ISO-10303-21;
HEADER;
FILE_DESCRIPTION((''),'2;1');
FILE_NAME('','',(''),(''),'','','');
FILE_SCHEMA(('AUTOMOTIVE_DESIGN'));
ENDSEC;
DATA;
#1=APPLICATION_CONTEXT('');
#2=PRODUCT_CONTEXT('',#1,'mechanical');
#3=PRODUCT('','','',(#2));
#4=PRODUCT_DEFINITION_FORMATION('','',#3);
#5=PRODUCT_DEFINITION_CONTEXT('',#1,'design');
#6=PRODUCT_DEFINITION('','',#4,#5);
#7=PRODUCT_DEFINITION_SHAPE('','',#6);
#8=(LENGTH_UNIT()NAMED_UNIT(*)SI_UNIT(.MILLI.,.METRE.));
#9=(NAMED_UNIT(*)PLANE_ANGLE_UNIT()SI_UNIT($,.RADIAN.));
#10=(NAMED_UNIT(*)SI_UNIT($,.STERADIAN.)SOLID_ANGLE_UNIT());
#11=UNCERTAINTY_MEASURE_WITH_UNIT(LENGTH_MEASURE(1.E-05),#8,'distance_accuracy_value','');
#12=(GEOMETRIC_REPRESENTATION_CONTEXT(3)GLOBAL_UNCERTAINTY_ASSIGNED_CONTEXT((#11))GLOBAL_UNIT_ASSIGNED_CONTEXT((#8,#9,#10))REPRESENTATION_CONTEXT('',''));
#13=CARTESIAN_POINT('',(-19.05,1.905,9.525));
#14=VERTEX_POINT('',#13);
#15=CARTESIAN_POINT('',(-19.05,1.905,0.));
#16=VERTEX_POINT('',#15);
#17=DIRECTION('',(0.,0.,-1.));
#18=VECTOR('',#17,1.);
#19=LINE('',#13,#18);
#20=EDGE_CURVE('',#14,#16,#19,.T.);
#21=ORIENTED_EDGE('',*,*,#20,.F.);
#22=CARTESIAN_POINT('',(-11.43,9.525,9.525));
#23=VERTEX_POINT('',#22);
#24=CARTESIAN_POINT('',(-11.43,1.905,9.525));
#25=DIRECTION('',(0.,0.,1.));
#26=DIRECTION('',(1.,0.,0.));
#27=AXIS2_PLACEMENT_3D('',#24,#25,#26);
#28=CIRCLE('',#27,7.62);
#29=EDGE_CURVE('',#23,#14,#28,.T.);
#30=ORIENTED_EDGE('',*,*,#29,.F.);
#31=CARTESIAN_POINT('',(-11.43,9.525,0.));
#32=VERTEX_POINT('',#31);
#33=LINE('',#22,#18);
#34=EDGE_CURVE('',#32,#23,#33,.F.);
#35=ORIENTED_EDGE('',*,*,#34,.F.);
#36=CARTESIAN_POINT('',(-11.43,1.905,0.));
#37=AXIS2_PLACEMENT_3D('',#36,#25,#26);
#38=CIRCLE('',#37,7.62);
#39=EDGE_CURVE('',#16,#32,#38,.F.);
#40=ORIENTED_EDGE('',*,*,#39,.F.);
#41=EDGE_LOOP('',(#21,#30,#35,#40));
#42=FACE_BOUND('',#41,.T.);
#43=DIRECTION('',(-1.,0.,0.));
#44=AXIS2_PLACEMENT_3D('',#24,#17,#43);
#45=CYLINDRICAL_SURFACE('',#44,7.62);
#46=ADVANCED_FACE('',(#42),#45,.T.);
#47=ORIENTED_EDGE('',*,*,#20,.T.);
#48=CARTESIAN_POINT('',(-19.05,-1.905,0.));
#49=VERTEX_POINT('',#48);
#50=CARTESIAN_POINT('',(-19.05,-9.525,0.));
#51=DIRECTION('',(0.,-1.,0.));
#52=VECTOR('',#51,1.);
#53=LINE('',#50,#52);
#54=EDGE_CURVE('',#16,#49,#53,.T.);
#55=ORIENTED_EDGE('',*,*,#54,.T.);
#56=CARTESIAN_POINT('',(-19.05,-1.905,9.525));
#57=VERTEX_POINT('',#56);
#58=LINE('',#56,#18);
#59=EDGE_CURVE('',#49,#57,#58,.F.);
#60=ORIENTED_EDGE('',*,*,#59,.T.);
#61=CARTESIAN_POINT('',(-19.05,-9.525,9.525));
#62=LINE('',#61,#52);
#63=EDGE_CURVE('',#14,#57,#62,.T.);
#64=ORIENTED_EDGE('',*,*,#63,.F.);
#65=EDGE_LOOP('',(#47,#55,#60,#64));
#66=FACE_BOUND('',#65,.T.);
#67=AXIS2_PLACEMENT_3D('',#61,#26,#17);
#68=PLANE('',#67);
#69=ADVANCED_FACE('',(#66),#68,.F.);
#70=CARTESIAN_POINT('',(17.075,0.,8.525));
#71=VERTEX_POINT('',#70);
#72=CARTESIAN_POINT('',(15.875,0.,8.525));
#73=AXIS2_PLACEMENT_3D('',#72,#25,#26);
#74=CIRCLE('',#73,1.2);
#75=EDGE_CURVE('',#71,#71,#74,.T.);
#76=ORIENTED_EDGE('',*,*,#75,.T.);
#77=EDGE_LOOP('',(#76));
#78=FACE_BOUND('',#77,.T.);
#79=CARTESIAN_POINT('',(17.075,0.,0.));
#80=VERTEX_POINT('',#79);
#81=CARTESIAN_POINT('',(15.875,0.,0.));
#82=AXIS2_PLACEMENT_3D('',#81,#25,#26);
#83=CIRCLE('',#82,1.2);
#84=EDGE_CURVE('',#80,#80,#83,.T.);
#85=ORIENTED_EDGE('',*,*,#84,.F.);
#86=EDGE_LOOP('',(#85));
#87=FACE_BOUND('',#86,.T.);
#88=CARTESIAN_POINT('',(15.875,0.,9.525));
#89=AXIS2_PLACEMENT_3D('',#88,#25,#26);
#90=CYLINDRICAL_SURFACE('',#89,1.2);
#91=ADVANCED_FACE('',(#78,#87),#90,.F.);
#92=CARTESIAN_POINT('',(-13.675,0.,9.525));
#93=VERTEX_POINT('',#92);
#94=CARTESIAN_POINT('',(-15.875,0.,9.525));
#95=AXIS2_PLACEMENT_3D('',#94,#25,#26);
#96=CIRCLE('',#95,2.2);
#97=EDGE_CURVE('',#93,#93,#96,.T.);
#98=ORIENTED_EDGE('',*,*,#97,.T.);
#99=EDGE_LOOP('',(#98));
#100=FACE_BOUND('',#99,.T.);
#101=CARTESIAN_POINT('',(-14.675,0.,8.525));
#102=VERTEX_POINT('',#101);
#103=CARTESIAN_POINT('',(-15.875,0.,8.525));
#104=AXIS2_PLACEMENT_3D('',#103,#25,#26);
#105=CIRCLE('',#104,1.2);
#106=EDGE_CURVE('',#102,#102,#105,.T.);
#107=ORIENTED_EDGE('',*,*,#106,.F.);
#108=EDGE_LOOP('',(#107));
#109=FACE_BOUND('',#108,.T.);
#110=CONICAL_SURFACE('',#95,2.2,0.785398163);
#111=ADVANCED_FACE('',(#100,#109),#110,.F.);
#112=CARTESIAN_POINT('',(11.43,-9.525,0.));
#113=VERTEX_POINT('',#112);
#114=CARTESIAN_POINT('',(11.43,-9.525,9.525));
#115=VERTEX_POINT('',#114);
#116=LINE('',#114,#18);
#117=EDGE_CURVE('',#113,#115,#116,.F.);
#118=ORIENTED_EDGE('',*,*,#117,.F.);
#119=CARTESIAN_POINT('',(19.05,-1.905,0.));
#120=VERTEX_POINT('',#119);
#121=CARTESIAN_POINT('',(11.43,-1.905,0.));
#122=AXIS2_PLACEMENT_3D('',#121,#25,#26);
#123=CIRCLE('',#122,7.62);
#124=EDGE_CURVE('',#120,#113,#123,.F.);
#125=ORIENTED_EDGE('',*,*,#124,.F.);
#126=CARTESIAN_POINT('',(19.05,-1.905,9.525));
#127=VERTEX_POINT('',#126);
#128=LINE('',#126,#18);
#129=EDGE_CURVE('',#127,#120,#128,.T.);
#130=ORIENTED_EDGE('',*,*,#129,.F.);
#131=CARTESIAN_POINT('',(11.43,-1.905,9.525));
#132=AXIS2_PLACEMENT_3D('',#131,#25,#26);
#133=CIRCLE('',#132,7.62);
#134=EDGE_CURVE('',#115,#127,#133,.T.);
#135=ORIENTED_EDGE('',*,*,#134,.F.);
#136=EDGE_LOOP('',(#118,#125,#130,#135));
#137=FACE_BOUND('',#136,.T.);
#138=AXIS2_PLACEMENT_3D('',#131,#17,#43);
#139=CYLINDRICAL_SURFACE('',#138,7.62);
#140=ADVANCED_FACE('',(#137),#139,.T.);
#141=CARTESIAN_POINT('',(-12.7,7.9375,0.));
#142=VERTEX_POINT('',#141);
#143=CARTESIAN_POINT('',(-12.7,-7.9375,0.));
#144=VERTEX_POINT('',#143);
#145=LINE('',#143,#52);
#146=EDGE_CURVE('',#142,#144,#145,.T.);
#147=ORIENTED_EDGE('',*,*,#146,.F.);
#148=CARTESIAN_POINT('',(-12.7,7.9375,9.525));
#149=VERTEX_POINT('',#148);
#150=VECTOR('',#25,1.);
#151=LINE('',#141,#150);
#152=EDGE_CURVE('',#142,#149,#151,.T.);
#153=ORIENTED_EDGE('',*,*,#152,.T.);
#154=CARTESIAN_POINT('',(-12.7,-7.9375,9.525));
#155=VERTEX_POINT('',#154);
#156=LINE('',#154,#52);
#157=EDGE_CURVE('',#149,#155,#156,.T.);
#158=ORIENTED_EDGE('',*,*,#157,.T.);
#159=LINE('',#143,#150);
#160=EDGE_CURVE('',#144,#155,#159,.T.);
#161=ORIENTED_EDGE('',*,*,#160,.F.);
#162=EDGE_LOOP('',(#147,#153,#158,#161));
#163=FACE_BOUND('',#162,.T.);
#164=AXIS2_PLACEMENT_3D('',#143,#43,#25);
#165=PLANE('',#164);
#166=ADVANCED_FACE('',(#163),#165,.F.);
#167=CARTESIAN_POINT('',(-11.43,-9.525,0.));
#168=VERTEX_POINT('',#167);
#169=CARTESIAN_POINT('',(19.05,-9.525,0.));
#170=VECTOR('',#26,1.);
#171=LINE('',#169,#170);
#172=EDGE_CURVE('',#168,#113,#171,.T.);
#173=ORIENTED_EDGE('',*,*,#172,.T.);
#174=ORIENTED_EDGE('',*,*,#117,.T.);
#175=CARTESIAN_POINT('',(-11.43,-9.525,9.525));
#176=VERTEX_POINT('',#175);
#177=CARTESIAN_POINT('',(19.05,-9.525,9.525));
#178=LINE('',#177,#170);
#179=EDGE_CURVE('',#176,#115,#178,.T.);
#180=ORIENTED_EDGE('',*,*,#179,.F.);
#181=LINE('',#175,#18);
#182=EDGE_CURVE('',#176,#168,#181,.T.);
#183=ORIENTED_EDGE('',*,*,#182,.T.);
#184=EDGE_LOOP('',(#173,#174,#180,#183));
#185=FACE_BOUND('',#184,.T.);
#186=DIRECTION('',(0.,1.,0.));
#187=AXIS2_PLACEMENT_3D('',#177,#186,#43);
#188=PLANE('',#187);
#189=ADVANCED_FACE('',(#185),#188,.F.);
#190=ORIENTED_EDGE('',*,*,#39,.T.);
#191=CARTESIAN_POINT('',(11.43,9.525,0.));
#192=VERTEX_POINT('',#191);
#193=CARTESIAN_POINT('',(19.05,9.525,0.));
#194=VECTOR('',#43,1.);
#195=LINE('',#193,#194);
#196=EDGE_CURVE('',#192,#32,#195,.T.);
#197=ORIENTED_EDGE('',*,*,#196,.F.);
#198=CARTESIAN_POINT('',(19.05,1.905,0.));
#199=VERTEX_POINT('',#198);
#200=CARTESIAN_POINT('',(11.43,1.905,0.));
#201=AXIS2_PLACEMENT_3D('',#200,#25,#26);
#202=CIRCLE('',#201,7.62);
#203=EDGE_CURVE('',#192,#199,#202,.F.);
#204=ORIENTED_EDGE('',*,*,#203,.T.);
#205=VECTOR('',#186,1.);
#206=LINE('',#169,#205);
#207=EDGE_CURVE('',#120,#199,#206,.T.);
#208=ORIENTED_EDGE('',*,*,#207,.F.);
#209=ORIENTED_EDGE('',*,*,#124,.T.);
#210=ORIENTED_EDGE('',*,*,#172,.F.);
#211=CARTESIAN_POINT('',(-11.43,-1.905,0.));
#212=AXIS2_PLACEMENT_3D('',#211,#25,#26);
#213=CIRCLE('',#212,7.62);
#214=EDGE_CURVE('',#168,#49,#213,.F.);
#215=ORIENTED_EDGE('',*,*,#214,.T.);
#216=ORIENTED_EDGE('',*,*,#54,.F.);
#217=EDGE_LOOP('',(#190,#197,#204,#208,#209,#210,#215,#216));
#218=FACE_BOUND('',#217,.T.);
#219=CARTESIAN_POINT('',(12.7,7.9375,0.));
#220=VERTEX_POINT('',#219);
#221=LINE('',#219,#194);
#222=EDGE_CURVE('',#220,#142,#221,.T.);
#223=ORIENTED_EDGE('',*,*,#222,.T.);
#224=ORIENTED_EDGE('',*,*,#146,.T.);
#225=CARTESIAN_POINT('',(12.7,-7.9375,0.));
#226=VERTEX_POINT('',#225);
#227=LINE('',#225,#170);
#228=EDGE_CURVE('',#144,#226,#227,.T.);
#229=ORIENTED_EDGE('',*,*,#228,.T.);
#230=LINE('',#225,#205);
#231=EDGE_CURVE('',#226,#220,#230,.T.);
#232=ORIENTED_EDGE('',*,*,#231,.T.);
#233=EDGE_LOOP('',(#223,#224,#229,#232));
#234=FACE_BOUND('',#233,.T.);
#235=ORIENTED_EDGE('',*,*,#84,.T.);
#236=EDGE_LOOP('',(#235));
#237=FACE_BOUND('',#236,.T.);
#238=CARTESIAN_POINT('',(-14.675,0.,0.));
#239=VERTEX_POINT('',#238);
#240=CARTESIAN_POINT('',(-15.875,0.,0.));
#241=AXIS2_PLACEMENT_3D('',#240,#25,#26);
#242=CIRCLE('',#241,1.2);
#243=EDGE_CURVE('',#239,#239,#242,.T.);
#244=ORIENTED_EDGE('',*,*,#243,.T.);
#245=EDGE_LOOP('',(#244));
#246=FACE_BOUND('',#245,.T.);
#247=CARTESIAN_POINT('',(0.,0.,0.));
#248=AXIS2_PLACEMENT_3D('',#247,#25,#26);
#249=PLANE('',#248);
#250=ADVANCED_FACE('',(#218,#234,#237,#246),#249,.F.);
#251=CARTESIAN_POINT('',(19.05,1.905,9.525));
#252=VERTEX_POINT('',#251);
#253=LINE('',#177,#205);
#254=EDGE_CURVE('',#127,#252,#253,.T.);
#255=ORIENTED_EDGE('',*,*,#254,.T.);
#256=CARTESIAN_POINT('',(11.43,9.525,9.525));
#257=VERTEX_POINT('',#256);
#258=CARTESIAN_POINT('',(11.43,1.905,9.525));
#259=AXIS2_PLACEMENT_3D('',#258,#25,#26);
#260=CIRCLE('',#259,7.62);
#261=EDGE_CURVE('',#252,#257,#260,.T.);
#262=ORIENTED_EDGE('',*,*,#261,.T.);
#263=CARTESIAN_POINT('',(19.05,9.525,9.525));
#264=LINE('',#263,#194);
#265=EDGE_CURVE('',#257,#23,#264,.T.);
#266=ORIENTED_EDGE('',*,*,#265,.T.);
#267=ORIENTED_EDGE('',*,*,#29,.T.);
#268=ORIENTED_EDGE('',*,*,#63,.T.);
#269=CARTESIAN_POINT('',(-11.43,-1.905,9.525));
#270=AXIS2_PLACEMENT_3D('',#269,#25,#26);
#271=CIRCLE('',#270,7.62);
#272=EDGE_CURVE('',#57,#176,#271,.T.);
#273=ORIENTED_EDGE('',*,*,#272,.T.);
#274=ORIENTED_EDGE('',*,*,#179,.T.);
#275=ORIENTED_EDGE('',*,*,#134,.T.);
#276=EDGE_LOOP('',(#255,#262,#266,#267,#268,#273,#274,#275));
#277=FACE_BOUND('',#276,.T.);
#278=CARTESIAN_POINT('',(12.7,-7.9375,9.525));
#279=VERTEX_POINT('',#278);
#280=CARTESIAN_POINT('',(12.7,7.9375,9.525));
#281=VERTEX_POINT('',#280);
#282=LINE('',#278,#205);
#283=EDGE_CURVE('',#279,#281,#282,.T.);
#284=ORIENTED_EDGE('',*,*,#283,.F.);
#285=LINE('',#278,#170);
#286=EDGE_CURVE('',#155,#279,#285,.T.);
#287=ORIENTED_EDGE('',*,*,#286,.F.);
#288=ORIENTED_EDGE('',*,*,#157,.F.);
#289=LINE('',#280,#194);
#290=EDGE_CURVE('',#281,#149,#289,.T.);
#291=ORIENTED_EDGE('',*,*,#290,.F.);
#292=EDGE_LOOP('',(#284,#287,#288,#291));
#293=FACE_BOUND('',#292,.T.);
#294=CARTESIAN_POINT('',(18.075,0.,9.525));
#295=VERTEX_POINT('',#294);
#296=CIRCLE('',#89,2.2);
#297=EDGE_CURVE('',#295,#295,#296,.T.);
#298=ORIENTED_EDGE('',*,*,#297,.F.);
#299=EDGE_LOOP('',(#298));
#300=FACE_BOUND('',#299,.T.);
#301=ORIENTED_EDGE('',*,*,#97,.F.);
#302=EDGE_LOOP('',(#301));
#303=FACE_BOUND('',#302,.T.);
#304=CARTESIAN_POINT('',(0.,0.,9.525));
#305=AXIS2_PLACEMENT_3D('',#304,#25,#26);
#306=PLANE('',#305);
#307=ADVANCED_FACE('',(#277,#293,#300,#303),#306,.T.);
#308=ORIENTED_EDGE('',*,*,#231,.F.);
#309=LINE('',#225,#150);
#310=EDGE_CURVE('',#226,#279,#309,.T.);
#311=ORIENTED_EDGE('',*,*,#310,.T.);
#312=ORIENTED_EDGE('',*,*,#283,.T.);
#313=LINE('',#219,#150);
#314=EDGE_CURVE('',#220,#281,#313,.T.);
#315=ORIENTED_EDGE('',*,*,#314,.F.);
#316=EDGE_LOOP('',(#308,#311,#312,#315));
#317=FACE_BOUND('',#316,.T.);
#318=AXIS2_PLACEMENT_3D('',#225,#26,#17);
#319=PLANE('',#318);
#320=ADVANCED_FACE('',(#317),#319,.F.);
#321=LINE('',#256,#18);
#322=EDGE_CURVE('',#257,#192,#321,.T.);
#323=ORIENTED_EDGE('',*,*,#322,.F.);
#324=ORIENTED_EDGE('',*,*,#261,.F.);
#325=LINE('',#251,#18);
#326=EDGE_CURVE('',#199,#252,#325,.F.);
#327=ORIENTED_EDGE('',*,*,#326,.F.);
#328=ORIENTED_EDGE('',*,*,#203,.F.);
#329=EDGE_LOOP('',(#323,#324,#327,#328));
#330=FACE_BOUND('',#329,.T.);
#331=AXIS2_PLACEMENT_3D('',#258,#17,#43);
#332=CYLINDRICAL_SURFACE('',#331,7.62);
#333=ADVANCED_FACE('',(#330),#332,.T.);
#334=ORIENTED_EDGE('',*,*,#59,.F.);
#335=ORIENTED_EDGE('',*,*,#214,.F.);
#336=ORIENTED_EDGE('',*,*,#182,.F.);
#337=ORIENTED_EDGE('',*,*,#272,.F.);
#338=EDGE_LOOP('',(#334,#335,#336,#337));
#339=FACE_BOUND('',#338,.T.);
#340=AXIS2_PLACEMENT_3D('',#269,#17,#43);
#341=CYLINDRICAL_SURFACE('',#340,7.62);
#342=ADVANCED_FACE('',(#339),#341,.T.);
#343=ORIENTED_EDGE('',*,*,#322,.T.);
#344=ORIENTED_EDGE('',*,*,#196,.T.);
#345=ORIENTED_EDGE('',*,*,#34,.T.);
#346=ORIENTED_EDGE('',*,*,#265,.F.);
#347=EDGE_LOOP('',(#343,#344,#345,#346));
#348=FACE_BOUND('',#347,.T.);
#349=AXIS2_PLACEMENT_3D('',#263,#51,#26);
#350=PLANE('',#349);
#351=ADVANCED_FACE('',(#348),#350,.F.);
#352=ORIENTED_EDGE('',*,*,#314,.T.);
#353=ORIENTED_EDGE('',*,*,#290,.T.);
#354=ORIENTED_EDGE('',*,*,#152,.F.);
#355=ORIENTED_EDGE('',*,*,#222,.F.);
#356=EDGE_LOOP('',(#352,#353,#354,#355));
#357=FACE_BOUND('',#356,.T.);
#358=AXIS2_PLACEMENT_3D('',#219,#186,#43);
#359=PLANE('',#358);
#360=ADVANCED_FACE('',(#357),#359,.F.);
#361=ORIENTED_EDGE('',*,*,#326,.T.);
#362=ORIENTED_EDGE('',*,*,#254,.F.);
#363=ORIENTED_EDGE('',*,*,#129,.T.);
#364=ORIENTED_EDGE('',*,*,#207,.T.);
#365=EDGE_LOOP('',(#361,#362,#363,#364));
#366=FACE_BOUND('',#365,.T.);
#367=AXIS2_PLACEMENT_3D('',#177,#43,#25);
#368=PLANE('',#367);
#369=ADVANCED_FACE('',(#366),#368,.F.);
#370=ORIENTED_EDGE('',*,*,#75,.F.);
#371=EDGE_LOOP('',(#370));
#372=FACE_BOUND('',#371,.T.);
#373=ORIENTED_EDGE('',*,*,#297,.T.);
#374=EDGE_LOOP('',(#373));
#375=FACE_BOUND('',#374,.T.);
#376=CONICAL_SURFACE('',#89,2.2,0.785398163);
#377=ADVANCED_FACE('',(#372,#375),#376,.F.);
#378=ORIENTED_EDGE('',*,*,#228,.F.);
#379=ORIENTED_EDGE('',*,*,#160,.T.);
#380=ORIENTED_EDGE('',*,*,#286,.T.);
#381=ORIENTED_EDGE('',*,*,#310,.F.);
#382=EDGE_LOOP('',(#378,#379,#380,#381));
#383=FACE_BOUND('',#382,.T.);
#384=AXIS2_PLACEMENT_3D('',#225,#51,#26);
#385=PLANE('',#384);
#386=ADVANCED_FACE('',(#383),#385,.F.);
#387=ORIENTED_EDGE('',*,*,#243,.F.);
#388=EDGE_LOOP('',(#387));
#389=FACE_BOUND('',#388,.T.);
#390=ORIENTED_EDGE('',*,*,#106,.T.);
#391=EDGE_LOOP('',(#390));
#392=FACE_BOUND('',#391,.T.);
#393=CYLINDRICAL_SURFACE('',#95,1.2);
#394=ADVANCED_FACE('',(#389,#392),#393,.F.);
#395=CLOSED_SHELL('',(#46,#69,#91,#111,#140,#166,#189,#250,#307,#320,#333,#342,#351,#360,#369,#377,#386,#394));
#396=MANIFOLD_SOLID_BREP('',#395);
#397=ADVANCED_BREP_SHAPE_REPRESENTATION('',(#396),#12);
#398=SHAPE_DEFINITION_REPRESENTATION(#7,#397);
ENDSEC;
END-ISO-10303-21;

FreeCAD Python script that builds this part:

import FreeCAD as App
import Part
import Sketcher
from FreeCAD import Vector
Q = App.Units.Quantity


def edges_at(feature, points):
    """Names of the edges that pass closest to the given points."""
    edges = feature.Shape.Edges
    near = lambda p: min(range(len(edges)), key=lambda i: edges[i].distToShape(Part.Vertex(*p))[0])
    return sorted({f"Edge{near(p) + 1}" for p in points})


def add_polygon(sketch, points):
    """Adds a closed chain of lines whose ends are joined by coincident constraints."""
    first, n = sketch.GeometryCount, len(points)
    for a, b in zip(points, points[1:] + points[:1]):
        sketch.addGeometry(Part.LineSegment(App.Vector(*a, 0), App.Vector(*b, 0)), False)
    for i in range(n):
        sketch.addConstraint(Sketcher.Constraint("Coincident", first + i, 2, first + (i + 1) % n, 1))

doc = App.newDocument("Part")
body = doc.addObject("PartDesign::Body", "Body")

sketch1 = body.newObject("Sketcher::SketchObject", "Sketch")
sketch1.AttachmentSupport = (doc.getObject("XY_Plane"), [""])
sketch1.MapMode = "FlatFace"
add_polygon(sketch1, [(-19, 10), (-19, -10), (19, -10), (19, 10)])
sketch1.addConstraint([
    Sketcher.Constraint("Vertical", 0),
    Sketcher.Constraint("Horizontal", 1),
    Sketcher.Constraint("Vertical", 2),
    Sketcher.Constraint("Horizontal", 3),
    Sketcher.Constraint("Symmetric", 0, 2, 2, 2, -1, 1),
    Sketcher.Constraint("DistanceX", 1, 1, 1, 2, Q("1.5 in")),
    Sketcher.Constraint("DistanceY", 0, 2, 0, 1, Q("0.75 in")),
])
pad1 = body.newObject("PartDesign::Pad", "Pad")
pad1.Profile = sketch1
pad1.Length = Q("0.375 in")

sketch2 = body.newObject("Sketcher::SketchObject", "Sketch001")
sketch2.AttachmentSupport = (doc.getObject("XY_Plane"), [""])
sketch2.MapMode = "FlatFace"
sketch2.AttachmentOffset = App.Placement(Vector(0, 0, 0.375 * 25.4), App.Rotation())
add_polygon(sketch2, [(-13, 8), (-13, -8), (13, -8), (13, 8)])
sketch2.addConstraint([
    Sketcher.Constraint("Vertical", 0),
    Sketcher.Constraint("Horizontal", 1),
    Sketcher.Constraint("Vertical", 2),
    Sketcher.Constraint("Horizontal", 3),
    Sketcher.Constraint("Symmetric", 0, 2, 2, 2, -1, 1),
    Sketcher.Constraint("DistanceX", 1, 1, 1, 2, Q("1 in")),
    Sketcher.Constraint("DistanceY", 0, 2, 0, 1, Q("0.625 in")),
])
pocket1 = body.newObject("PartDesign::Pocket", "Pocket")
pocket1.Profile = sketch2
pocket1.Length = Q("0.375 in")
doc.recompute()

fillet = body.newObject("PartDesign::Fillet", "Fillet")
fillet.Base = (pocket1, edges_at(pocket1, [
    (-19.05, 9.525, 4.763),
    (19.05, 9.525, 4.763),
    (19.05, -9.525, 4.763),
    (-19.05, -9.525, 4.763),
]))
fillet.Radius = Q("0.3 in")

sketch3 = body.newObject("Sketcher::SketchObject", "Sketch002")
sketch3.AttachmentSupport = (doc.getObject("XY_Plane"), [""])
sketch3.MapMode = "FlatFace"
sketch3.AttachmentOffset = App.Placement(Vector(0, 0, 0.375 * 25.4), App.Rotation())
sketch3.addGeometry([
    Part.Circle(Vector(-15.9, 0, 0), Vector(0, 0, 1), 1.2),
    Part.Circle(Vector(15.9, 0, 0), Vector(0, 0, 1), 1.2),
], False)
sketch3.addConstraint([
    Sketcher.Constraint("Equal", 0, 1),
    Sketcher.Constraint("Symmetric", 0, 3, 1, 3, -1, 1),
    Sketcher.Constraint("PointOnObject", 0, 3, -1),
    Sketcher.Constraint("Diameter", 0, 2.4),
    Sketcher.Constraint("DistanceX", 0, 3, 1, 3, Q("1.25 in")),
])
doc.recompute()
hole = body.newObject("PartDesign::Hole", "Hole")
hole.Profile = sketch3
hole.ThreadType = "None"
hole.Diameter = 2.4
hole.DepthType = "ThroughAll"
hole.HoleCutType = "Countersink"
hole.HoleCutDiameter = 4.4
hole.HoleCutCountersinkAngle = 90

doc.recompute()
